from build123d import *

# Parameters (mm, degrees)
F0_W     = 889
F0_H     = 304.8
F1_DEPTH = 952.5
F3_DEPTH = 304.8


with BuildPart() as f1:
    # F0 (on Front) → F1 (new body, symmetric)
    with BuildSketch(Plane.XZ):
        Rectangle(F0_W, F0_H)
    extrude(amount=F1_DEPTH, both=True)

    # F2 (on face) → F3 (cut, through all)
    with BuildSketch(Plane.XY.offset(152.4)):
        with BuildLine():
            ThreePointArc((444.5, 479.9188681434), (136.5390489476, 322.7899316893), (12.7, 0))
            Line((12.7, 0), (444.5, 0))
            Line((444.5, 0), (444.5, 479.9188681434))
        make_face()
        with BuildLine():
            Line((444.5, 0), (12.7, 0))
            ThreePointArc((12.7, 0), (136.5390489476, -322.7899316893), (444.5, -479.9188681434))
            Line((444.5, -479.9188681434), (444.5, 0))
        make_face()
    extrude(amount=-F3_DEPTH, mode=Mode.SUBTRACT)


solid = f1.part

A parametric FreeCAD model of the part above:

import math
import FreeCAD as App
import Part
import Sketcher

V = App.Vector
Q = App.Units.Quantity


def add_polygon(sketch, points):
    """Adds a closed chain of lines whose ends are joined by coincident constraints."""
    first, n = sketch.GeometryCount, len(points)
    for a, b in zip(points, points[1:] + points[:1]):
        sketch.addGeometry(Part.LineSegment(App.Vector(*a, 0), App.Vector(*b, 0)), False)
    for i in range(n):
        sketch.addConstraint(Sketcher.Constraint("Coincident", first + i, 2, first + (i + 1) % n, 1))

doc = App.newDocument("Part")
body = doc.addObject("PartDesign::Body", "Body")

# Sketch on XZ plane
sketch1 = doc.addObject("Sketcher::SketchObject", "Sketch")
body.addObject(sketch1)
sketch1.AttachmentSupport = (doc.XZ_Plane, [""])
sketch1.MapMode = "FlatFace"
add_polygon(sketch1, [(-444, 152), (-444, -152), (444, -152), (444, 152)])  # lines 0-3
sketch1.addConstraint(Sketcher.Constraint("Vertical", 0))
sketch1.addConstraint(Sketcher.Constraint("Horizontal", 1))
sketch1.addConstraint(Sketcher.Constraint("Vertical", 2))
sketch1.addConstraint(Sketcher.Constraint("Horizontal", 3))
sketch1.addConstraint(Sketcher.Constraint("Symmetric", 0, 2, 2, 2, -1, 1))
sketch1.addConstraint(Sketcher.Constraint("DistanceX", 1, 1, 1, 2, Q("35 in")))
sketch1.addConstraint(Sketcher.Constraint("DistanceY", 0, 2, 0, 1, Q("12 in")))
pad1 = doc.addObject("PartDesign::Pad", "Pad")
body.addObject(pad1)
pad1.Profile = sketch1
pad1.Length = Q("75 in")
pad1.Midplane = True

# Sketch on XY plane
sketch2 = doc.addObject("Sketcher::SketchObject", "Sketch001")
body.addObject(sketch2)
sketch2.AttachmentSupport = (doc.XY_Plane, [""])
sketch2.MapMode = "FlatFace"
sketch2.AttachmentOffset = App.Placement(V(0, 0, 6 * 25.4), App.Rotation())
sketch2.addGeometry(Part.ArcOfCircle(Part.Circle(V(495, 0, 0), V(0, 0, 1), 483), math.radians(96), math.radians(264)), False)
sketch2.addGeometry(Part.LineSegment(V(444, -480, 0), V(444, 480, 0)), False)
sketch2.addConstraint(Sketcher.Constraint("Coincident", 0, 1, 1, 2))
sketch2.addConstraint(Sketcher.Constraint("Coincident", 1, 1, 0, 2))
sketch2.addConstraint(Sketcher.Constraint("Vertical", 1))
sketch2.addConstraint(Sketcher.Constraint("PointOnObject", 0, 3, -1))
sketch2.addConstraint(Sketcher.Constraint("Radius", 0, Q("19 in")))
sketch2.addConstraint(Sketcher.Constraint("DistanceX", 0, 1, 0, 3, Q("2 in")))
sketch2.addConstraint(Sketcher.Constraint("DistanceX", -1, 1, 0, 3, Q("19.5 in")))
pocket1 = doc.addObject("PartDesign::Pocket", "Pocket")
body.addObject(pocket1)
pocket1.Profile = sketch2
pocket1.Type = "ThroughAll"

doc.recompute()
